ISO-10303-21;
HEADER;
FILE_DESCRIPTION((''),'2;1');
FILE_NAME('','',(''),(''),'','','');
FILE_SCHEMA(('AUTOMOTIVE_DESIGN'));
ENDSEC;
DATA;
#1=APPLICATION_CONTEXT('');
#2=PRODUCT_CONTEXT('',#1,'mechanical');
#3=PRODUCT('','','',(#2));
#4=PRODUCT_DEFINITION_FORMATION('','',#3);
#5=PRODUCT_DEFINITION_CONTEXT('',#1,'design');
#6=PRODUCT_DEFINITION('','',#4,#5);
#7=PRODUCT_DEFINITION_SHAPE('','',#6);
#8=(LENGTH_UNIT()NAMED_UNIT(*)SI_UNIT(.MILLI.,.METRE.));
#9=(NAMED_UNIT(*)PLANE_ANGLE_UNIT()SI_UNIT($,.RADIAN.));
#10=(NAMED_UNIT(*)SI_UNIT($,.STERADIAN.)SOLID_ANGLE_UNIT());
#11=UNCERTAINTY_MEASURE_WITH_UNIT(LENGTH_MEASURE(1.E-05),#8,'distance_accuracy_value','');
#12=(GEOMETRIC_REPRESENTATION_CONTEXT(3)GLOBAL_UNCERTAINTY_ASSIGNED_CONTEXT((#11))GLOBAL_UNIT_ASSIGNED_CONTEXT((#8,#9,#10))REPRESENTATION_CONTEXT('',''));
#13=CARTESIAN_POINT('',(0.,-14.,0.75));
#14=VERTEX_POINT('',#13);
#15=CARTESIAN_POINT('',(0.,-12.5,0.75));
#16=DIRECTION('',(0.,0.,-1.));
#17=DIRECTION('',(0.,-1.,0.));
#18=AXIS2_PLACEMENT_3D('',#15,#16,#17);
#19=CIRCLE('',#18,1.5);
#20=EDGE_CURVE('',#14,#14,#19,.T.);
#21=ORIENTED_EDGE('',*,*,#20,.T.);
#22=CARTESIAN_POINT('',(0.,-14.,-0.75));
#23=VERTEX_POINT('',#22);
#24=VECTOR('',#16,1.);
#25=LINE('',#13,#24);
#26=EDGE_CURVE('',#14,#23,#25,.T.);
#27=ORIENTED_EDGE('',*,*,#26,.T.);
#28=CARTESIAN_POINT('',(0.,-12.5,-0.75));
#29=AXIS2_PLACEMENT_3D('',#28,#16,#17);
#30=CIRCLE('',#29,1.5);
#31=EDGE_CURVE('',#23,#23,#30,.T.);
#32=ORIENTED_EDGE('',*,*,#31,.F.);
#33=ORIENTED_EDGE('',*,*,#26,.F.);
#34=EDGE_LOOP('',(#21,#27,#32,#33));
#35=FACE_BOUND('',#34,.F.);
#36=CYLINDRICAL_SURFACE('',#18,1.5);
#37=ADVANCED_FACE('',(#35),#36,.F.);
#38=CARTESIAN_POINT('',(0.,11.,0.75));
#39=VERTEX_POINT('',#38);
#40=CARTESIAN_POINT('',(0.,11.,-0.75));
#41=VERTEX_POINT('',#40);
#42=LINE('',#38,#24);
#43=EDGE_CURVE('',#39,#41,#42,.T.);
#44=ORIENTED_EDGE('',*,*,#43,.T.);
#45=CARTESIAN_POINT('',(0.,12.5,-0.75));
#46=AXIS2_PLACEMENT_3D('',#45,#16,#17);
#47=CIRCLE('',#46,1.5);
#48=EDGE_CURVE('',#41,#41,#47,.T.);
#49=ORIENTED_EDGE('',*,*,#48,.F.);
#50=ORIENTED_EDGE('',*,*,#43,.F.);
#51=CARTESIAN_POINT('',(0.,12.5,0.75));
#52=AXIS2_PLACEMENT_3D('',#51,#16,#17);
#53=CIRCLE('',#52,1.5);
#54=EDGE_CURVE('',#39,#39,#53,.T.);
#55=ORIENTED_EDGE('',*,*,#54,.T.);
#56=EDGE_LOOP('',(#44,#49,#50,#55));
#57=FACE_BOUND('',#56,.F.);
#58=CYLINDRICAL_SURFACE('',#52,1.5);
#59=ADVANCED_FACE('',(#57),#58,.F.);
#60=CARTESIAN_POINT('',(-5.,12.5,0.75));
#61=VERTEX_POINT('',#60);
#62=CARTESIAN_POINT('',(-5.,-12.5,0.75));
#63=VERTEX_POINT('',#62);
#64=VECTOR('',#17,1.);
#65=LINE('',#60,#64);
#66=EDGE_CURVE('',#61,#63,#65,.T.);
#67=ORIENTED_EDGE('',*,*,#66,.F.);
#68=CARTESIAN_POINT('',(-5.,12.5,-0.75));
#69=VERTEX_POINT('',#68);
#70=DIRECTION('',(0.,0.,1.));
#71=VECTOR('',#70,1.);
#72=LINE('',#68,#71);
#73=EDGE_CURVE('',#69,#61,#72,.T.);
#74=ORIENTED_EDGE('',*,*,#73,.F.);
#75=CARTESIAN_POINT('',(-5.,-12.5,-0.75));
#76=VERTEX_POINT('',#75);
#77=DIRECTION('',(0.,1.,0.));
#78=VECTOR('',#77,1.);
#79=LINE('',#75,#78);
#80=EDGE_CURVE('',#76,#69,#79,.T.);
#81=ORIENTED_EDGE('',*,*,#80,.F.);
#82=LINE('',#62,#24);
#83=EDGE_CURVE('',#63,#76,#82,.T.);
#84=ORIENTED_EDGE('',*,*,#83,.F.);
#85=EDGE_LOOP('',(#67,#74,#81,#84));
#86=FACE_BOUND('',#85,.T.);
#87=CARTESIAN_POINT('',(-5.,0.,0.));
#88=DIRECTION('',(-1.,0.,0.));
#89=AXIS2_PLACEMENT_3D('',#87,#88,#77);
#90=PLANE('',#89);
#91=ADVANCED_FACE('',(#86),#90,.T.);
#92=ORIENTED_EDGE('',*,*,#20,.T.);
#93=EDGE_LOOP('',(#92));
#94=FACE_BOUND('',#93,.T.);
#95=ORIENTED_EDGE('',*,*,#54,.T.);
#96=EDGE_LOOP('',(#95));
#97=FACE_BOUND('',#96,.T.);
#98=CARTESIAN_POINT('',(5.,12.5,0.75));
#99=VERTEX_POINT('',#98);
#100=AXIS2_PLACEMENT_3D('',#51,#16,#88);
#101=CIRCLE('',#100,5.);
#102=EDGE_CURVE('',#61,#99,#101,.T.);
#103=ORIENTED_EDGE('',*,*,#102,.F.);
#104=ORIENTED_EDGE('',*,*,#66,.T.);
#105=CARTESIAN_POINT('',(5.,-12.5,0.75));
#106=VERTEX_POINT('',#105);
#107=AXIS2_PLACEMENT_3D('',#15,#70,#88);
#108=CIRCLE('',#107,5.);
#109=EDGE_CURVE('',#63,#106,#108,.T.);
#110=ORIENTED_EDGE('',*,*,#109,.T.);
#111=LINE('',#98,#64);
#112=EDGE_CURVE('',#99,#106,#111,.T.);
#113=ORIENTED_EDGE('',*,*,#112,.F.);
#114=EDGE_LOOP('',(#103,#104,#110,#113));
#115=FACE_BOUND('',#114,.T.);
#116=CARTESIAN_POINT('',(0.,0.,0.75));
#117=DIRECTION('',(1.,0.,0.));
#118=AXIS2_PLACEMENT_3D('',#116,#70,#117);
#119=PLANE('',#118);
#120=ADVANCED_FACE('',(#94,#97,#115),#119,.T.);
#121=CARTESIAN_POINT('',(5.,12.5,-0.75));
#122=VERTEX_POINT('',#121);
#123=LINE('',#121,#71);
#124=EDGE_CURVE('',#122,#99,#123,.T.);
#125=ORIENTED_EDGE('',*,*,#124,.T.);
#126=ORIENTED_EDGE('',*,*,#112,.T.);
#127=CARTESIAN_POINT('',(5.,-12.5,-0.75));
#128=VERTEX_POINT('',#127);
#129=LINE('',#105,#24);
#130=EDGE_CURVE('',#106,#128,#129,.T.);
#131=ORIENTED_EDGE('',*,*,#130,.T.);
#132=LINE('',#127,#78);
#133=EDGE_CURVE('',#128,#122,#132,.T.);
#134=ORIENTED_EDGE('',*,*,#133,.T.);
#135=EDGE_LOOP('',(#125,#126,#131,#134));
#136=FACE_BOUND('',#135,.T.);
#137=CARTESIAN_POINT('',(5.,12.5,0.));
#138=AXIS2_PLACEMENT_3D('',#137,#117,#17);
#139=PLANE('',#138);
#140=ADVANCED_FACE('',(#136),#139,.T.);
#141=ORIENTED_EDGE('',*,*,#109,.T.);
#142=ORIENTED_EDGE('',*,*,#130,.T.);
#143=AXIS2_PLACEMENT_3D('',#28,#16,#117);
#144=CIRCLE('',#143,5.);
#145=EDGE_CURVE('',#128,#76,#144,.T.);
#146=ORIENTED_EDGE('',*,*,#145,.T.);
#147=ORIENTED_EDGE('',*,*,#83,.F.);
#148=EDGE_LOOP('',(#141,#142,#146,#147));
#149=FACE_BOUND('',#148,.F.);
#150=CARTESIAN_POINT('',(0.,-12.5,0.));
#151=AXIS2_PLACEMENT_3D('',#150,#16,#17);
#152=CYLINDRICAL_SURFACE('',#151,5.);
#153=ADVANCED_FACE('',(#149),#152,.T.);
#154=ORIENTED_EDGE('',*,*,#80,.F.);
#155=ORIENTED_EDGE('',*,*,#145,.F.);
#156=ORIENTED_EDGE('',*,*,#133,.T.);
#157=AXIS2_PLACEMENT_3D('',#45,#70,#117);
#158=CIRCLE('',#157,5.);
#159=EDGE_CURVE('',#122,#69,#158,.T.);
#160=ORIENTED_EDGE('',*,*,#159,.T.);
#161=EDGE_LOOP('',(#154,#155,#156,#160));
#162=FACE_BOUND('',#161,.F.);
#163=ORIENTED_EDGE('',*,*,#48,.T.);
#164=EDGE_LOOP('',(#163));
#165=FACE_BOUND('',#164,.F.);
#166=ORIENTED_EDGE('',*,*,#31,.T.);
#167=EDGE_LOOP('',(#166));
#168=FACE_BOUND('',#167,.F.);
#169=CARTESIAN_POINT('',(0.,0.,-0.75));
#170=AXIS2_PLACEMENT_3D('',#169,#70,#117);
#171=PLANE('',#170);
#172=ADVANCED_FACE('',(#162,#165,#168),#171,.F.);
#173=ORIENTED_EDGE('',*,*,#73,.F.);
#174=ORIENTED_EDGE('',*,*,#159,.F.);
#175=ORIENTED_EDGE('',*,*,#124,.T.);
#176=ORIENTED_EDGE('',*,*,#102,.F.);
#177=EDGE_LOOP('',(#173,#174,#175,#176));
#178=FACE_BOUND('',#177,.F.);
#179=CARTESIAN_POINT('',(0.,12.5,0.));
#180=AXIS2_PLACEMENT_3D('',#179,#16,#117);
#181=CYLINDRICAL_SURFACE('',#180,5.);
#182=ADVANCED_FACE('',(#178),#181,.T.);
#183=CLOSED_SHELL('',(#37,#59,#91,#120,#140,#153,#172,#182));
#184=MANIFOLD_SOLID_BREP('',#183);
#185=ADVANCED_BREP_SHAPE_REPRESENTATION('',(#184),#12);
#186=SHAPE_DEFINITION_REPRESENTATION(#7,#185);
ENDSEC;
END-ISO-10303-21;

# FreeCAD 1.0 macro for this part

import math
import FreeCAD as App
import Part
import Sketcher

doc = App.newDocument("Part")
body = doc.addObject("PartDesign::Body", "Body")

sketch1 = body.newObject("Sketcher::SketchObject", "Sketch")
sketch1.AttachmentSupport = (doc.getObject("XY_Plane"), [""])
sketch1.MapMode = "FlatFace"
sketch1.addGeometry(Part.ArcOfCircle(Part.Circle(App.Vector(0, 12.5, 0), App.Vector(0, 0, 1), 5), math.radians(0), math.radians(180)), False)
sketch1.addGeometry(Part.LineSegment(App.Vector(-5, 12.5, 0), App.Vector(-5, -12.5, 0)), False)
sketch1.addGeometry(Part.ArcOfCircle(Part.Circle(App.Vector(0, -12.5, 0), App.Vector(0, 0, 1), 5), math.radians(180), math.radians(360)), False)
sketch1.addGeometry(Part.LineSegment(App.Vector(5, -12.5, 0), App.Vector(5, 12.5, 0)), False)
sketch1.addConstraint(Sketcher.Constraint("Tangent", 0, 2, 1, 1))
sketch1.addConstraint(Sketcher.Constraint("Tangent", 1, 2, 2, 1))
sketch1.addConstraint(Sketcher.Constraint("Tangent", 2, 2, 3, 1))
sketch1.addConstraint(Sketcher.Constraint("Tangent", 3, 2, 0, 1))
sketch1.addConstraint(Sketcher.Constraint("Vertical", 1))
sketch1.addConstraint(Sketcher.Constraint("Vertical", 3))
sketch1.addConstraint(Sketcher.Constraint("Symmetric", 0, 3, 2, 3, -1, 1))
sketch1.addConstraint(Sketcher.Constraint("Radius", 0, 5.0))
sketch1.addConstraint(Sketcher.Constraint("DistanceY", 1, 2, 1, 1, 25.0))
pad1 = body.newObject("PartDesign::Pad", "Pad")
pad1.Profile = sketch1
pad1.Length = 1.5
pad1.Midplane = True

sketch2 = body.newObject("Sketcher::SketchObject", "Sketch001")
sketch2.AttachmentSupport = (doc.getObject("XY_Plane"), [""])
sketch2.MapMode = "FlatFace"
sketch2.AttachmentOffset = App.Placement(App.Vector(0, 0, 0.75), App.Rotation())
sketch2.addGeometry(Part.Circle(App.Vector(0, 12.5, 0), App.Vector(0, 0, 1), 1.5), False)
sketch2.addGeometry(Part.Circle(App.Vector(0, -12.5, 0), App.Vector(0, 0, 1), 1.5), False)
sketch2.addConstraint(Sketcher.Constraint("Equal", 0, 1))
sketch2.addConstraint(Sketcher.Constraint("Symmetric", 0, 3, 1, 3, -1, 1))
sketch2.addConstraint(Sketcher.Constraint("PointOnObject", 0, 3, -2))
sketch2.addConstraint(Sketcher.Constraint("Diameter", 0, 3.0))
sketch2.addConstraint(Sketcher.Constraint("DistanceY", 1, 3, 0, 3, 25.0))
doc.recompute()
hole = body.newObject("PartDesign::Hole", "Hole")
hole.Profile = sketch2
hole.ThreadType = "None"
hole.Diameter = 3
hole.DepthType = "ThroughAll"

doc.recompute()
